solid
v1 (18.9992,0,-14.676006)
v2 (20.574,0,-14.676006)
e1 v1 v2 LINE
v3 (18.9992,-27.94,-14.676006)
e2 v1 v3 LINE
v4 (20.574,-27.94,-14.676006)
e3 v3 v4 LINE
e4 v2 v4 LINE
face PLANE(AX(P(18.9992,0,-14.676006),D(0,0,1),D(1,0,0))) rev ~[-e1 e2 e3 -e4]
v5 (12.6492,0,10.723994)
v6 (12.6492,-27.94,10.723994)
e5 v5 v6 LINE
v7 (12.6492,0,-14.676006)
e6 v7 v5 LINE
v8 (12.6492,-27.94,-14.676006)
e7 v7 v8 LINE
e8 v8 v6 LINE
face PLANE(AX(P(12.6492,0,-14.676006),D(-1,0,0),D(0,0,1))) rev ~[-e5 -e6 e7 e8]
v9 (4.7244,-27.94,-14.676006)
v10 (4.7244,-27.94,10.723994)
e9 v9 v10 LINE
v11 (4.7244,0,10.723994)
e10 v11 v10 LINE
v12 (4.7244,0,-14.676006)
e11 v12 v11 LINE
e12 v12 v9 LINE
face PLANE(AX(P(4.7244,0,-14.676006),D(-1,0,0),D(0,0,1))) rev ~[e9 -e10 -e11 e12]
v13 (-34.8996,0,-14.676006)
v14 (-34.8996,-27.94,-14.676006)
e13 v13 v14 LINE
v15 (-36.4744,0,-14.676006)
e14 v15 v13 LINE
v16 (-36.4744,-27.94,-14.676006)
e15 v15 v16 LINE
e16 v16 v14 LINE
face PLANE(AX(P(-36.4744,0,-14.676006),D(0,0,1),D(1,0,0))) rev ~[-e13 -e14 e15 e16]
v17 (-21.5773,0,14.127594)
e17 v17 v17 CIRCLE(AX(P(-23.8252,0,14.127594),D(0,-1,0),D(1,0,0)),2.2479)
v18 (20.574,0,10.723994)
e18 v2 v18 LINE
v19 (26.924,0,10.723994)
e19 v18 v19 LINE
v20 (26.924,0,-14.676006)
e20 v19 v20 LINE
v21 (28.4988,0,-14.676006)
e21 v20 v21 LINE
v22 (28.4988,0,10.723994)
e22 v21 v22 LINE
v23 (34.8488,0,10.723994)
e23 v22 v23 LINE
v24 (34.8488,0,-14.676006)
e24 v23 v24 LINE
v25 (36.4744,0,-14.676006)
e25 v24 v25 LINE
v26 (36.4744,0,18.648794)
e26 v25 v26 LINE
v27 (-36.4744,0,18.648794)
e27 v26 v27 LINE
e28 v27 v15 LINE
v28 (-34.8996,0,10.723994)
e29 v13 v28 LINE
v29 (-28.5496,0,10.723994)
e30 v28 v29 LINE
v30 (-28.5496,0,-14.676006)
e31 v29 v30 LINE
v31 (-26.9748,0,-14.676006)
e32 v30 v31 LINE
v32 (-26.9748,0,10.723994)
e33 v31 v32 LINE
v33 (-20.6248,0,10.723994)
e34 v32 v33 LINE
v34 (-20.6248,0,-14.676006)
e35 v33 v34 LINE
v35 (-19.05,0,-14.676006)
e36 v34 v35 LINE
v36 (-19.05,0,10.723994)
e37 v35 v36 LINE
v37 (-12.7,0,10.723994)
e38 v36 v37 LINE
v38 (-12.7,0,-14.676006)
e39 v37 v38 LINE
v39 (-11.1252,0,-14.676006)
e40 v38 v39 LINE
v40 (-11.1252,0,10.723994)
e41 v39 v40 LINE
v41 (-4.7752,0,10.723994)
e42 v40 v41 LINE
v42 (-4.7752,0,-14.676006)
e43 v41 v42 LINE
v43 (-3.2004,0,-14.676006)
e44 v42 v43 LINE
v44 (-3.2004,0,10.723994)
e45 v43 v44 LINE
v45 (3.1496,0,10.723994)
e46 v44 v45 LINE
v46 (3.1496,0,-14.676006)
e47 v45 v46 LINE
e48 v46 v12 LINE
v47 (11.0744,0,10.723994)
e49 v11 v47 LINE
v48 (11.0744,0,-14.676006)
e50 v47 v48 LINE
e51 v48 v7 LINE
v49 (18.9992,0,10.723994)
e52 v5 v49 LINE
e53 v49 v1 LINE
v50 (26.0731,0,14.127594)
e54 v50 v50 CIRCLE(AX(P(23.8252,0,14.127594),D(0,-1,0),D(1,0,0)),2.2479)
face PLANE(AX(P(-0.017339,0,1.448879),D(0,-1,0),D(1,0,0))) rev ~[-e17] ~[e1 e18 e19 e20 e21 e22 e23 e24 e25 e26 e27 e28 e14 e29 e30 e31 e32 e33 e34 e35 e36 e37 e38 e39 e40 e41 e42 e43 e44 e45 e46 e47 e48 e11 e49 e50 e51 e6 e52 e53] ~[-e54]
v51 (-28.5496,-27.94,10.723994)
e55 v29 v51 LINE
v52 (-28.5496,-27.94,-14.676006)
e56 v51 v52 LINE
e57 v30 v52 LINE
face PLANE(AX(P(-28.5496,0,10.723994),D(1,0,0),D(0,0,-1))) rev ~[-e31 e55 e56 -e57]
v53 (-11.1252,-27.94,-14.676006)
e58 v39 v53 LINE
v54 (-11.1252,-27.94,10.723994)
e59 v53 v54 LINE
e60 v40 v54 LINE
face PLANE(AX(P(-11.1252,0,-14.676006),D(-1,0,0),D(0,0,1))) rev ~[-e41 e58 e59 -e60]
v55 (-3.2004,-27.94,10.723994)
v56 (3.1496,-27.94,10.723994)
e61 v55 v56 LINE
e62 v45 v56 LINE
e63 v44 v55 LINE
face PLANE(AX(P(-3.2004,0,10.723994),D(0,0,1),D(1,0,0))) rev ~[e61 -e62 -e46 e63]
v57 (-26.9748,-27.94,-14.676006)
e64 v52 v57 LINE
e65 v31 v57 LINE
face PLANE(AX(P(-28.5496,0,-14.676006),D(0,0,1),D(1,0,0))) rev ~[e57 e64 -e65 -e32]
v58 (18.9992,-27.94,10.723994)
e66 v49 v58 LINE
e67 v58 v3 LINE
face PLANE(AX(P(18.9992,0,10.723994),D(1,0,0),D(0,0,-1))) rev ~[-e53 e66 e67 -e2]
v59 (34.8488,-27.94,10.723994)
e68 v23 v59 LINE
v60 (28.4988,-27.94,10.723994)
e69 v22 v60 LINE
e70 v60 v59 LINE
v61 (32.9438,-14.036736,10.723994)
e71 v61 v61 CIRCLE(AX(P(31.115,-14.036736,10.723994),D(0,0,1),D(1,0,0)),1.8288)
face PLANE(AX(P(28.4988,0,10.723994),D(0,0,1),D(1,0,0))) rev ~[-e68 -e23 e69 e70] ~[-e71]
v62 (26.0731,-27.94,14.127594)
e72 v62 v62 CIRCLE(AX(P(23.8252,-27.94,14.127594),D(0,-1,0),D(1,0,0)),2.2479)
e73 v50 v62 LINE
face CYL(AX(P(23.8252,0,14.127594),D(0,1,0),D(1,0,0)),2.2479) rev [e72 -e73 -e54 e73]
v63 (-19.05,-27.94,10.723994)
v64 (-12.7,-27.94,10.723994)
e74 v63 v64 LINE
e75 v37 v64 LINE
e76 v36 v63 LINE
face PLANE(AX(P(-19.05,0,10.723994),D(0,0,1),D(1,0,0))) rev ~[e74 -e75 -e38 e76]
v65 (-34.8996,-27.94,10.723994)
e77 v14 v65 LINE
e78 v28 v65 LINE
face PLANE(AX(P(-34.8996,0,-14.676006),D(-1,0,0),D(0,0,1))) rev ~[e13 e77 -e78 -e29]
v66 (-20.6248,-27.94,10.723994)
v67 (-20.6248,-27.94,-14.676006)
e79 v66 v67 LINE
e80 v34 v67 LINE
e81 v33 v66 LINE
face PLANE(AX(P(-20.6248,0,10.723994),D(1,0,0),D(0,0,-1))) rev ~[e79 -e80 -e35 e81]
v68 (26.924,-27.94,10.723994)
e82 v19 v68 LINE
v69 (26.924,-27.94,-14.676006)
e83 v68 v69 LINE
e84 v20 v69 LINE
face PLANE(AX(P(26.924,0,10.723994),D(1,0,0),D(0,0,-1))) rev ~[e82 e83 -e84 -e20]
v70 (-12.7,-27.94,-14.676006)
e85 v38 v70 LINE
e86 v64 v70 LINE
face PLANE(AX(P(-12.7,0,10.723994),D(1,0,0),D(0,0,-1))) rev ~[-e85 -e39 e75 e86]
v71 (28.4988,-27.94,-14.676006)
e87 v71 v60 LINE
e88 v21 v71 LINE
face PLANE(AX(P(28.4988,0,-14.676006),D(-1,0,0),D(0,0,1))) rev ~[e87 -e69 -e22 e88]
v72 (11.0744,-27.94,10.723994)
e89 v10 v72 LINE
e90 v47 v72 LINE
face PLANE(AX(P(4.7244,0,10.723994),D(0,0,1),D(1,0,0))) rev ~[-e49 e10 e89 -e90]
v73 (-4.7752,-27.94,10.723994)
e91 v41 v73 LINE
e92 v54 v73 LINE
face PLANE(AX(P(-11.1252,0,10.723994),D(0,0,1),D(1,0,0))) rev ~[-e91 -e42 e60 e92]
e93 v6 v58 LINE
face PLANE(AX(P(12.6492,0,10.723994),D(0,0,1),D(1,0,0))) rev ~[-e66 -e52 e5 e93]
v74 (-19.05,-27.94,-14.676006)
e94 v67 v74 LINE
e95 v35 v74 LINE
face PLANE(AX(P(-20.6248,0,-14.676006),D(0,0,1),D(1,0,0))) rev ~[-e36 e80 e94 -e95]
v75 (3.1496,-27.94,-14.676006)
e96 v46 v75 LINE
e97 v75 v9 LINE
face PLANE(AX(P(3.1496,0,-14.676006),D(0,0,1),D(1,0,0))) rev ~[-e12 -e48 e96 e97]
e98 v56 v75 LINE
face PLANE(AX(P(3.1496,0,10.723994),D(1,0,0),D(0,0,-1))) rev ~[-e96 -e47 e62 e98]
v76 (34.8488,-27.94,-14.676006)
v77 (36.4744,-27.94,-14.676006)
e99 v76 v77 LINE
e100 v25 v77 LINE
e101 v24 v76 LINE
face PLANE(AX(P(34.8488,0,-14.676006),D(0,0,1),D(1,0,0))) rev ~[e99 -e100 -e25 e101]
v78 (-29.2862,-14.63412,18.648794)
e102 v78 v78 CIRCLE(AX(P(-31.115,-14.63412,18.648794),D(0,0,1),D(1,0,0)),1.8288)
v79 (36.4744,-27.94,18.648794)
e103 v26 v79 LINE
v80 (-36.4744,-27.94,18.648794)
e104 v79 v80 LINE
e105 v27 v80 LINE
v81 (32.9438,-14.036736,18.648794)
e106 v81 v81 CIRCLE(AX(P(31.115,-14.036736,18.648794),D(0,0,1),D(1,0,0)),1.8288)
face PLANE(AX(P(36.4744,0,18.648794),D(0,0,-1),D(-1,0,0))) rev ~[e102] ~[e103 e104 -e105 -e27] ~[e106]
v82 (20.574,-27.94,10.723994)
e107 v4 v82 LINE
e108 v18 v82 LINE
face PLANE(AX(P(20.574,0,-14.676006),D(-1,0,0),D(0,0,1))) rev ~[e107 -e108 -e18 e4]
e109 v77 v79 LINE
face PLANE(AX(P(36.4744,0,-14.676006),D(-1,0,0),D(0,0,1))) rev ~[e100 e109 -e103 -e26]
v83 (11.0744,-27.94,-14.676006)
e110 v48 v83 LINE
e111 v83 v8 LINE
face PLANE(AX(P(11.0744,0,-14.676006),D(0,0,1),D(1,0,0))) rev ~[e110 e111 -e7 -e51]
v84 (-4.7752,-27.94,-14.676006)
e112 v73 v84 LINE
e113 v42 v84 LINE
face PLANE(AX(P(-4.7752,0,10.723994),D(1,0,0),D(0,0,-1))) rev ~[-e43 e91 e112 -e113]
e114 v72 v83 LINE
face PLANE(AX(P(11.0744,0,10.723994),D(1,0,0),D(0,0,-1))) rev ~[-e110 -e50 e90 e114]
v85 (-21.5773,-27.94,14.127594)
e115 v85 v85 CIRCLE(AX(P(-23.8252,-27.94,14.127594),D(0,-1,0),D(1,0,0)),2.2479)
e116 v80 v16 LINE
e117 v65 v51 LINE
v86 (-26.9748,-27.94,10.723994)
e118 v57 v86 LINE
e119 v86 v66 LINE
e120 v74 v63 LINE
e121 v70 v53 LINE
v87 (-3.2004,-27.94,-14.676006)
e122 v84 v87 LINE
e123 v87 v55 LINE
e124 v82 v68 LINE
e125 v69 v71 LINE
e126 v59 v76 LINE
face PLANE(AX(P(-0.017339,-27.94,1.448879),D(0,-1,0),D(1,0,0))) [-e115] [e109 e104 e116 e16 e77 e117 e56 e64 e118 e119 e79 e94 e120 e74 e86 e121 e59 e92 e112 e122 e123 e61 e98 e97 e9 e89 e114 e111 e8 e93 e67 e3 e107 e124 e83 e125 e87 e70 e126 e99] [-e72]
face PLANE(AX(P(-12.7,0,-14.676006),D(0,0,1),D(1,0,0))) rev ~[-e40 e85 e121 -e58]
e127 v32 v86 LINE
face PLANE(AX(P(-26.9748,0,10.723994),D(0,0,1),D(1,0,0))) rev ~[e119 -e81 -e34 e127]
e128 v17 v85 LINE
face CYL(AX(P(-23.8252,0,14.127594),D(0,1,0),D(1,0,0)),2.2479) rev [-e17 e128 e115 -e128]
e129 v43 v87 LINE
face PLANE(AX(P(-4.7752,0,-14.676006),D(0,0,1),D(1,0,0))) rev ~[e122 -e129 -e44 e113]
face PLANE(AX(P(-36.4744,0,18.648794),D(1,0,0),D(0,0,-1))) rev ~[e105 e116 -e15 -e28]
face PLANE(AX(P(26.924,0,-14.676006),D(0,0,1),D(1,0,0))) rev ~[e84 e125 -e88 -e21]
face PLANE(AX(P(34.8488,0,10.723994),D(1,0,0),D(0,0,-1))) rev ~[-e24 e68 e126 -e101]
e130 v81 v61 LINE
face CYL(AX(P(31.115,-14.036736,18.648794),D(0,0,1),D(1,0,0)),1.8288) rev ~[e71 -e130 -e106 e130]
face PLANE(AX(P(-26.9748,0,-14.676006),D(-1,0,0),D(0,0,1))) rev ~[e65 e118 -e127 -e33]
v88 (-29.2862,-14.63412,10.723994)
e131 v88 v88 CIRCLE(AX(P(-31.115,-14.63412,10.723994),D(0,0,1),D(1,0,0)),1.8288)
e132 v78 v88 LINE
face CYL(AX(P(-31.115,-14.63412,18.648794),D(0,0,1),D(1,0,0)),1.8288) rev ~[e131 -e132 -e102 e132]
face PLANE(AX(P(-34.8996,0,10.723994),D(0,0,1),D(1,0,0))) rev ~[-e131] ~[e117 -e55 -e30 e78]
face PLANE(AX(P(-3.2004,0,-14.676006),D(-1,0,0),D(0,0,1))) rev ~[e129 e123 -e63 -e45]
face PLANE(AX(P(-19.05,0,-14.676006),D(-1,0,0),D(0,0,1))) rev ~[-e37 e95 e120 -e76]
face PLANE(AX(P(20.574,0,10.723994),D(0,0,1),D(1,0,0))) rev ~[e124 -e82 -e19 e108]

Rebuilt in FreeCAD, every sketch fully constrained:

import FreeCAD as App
import Part
import Sketcher
Q = App.Units.Quantity

doc = App.newDocument("Part")
body = doc.addObject("PartDesign::Body", "Body")

sketch1 = body.newObject("Sketcher::SketchObject", "Sketch")
sketch1.AttachmentSupport = (doc.getObject("XZ_Plane"), [""])
sketch1.MapMode = "FlatFace"
sketch1.addGeometry([
    Part.LineSegment(App.Vector(-36.5, 18.6, 0), App.Vector(-36.5, -14.7, 0)),
    Part.LineSegment(App.Vector(-36.5, -14.7, 0), App.Vector(-34.9, -14.7, 0)),
    Part.LineSegment(App.Vector(-34.9, -14.7, 0), App.Vector(-34.9, 10.7, 0)),
    Part.LineSegment(App.Vector(-34.9, 10.7, 0), App.Vector(-28.5, 10.7, 0)),
    Part.LineSegment(App.Vector(-28.5, 10.7, 0), App.Vector(-28.5, -14.7, 0)),
    Part.LineSegment(App.Vector(-28.5, -14.7, 0), App.Vector(-27, -14.7, 0)),
    Part.LineSegment(App.Vector(-27, -14.7, 0), App.Vector(-27, 10.7, 0)),
    Part.LineSegment(App.Vector(-27, 10.7, 0), App.Vector(-20.6, 10.7, 0)),
    Part.LineSegment(App.Vector(-20.6, 10.7, 0), App.Vector(-20.6, -14.7, 0)),
    Part.LineSegment(App.Vector(-20.6, -14.7, 0), App.Vector(-19.1, -14.7, 0)),
    Part.LineSegment(App.Vector(-19.1, -14.7, 0), App.Vector(-19.1, 10.7, 0)),
    Part.LineSegment(App.Vector(-19.1, 10.7, 0), App.Vector(-12.7, 10.7, 0)),
    Part.LineSegment(App.Vector(-12.7, 10.7, 0), App.Vector(-12.7, -14.7, 0)),
    Part.LineSegment(App.Vector(-12.7, -14.7, 0), App.Vector(-11.1, -14.7, 0)),
    Part.LineSegment(App.Vector(-11.1, -14.7, 0), App.Vector(-11.1, 10.7, 0)),
    Part.LineSegment(App.Vector(-11.1, 10.7, 0), App.Vector(-4.8, 10.7, 0)),
    Part.LineSegment(App.Vector(-4.8, 10.7, 0), App.Vector(-4.8, -14.7, 0)),
    Part.LineSegment(App.Vector(-4.8, -14.7, 0), App.Vector(-3.2, -14.7, 0)),
    Part.LineSegment(App.Vector(-3.2, -14.7, 0), App.Vector(-3.2, 10.7, 0)),
    Part.LineSegment(App.Vector(-3.2, 10.7, 0), App.Vector(3.1, 10.7, 0)),
    Part.LineSegment(App.Vector(3.1, 10.7, 0), App.Vector(3.1, -14.7, 0)),
    Part.LineSegment(App.Vector(3.1, -14.7, 0), App.Vector(4.7, -14.7, 0)),
    Part.LineSegment(App.Vector(4.7, -14.7, 0), App.Vector(4.7, 10.7, 0)),
    Part.LineSegment(App.Vector(4.7, 10.7, 0), App.Vector(11.1, 10.7, 0)),
    Part.LineSegment(App.Vector(11.1, 10.7, 0), App.Vector(11.1, -14.7, 0)),
    Part.LineSegment(App.Vector(11.1, -14.7, 0), App.Vector(12.6, -14.7, 0)),
    Part.LineSegment(App.Vector(12.6, -14.7, 0), App.Vector(12.6, 10.7, 0)),
    Part.LineSegment(App.Vector(12.6, 10.7, 0), App.Vector(19, 10.7, 0)),
    Part.LineSegment(App.Vector(19, 10.7, 0), App.Vector(19, -14.7, 0)),
    Part.LineSegment(App.Vector(19, -14.7, 0), App.Vector(20.6, -14.7, 0)),
    Part.LineSegment(App.Vector(20.6, -14.7, 0), App.Vector(20.6, 10.7, 0)),
    Part.LineSegment(App.Vector(20.6, 10.7, 0), App.Vector(26.9, 10.7, 0)),
    Part.LineSegment(App.Vector(26.9, 10.7, 0), App.Vector(26.9, -14.7, 0)),
    Part.LineSegment(App.Vector(26.9, -14.7, 0), App.Vector(28.5, -14.7, 0)),
    Part.LineSegment(App.Vector(28.5, -14.7, 0), App.Vector(28.5, 10.7, 0)),
    Part.LineSegment(App.Vector(28.5, 10.7, 0), App.Vector(34.8, 10.7, 0)),
    Part.LineSegment(App.Vector(34.8, 10.7, 0), App.Vector(34.8, -14.7, 0)),
    Part.LineSegment(App.Vector(34.8, -14.7, 0), App.Vector(36.5, -14.7, 0)),
    Part.LineSegment(App.Vector(36.5, -14.7, 0), App.Vector(36.5, 18.6, 0)),
    Part.LineSegment(App.Vector(36.5, 18.6, 0), App.Vector(-36.5, 18.6, 0)),
    Part.Circle(App.Vector(-23.8, 14.1, 0), App.Vector(0, 0, 1), 2.2),
    Part.Circle(App.Vector(23.8, 14.1, 0), App.Vector(0, 0, 1), 2.2),
], False)
sketch1.addConstraint([
    Sketcher.Constraint("Coincident", 0, 2, 1, 1),
    Sketcher.Constraint("Coincident", 1, 2, 2, 1),
    Sketcher.Constraint("Coincident", 2, 2, 3, 1),
    Sketcher.Constraint("Coincident", 3, 2, 4, 1),
    Sketcher.Constraint("Coincident", 4, 2, 5, 1),
    Sketcher.Constraint("Coincident", 5, 2, 6, 1),
    Sketcher.Constraint("Coincident", 6, 2, 7, 1),
    Sketcher.Constraint("Coincident", 7, 2, 8, 1),
    Sketcher.Constraint("Coincident", 8, 2, 9, 1),
    Sketcher.Constraint("Coincident", 9, 2, 10, 1),
    Sketcher.Constraint("Coincident", 10, 2, 11, 1),
    Sketcher.Constraint("Coincident", 11, 2, 12, 1),
    Sketcher.Constraint("Coincident", 12, 2, 13, 1),
    Sketcher.Constraint("Coincident", 13, 2, 14, 1),
    Sketcher.Constraint("Coincident", 14, 2, 15, 1),
    Sketcher.Constraint("Coincident", 15, 2, 16, 1),
    Sketcher.Constraint("Coincident", 16, 2, 17, 1),
    Sketcher.Constraint("Coincident", 17, 2, 18, 1),
    Sketcher.Constraint("Coincident", 18, 2, 19, 1),
    Sketcher.Constraint("Coincident", 19, 2, 20, 1),
    Sketcher.Constraint("Coincident", 20, 2, 21, 1),
    Sketcher.Constraint("Coincident", 21, 2, 22, 1),
    Sketcher.Constraint("Coincident", 22, 2, 23, 1),
    Sketcher.Constraint("Coincident", 23, 2, 24, 1),
    Sketcher.Constraint("Coincident", 24, 2, 25, 1),
    Sketcher.Constraint("Coincident", 25, 2, 26, 1),
    Sketcher.Constraint("Coincident", 26, 2, 27, 1),
    Sketcher.Constraint("Coincident", 27, 2, 28, 1),
    Sketcher.Constraint("Coincident", 28, 2, 29, 1),
    Sketcher.Constraint("Coincident", 29, 2, 30, 1),
    Sketcher.Constraint("Coincident", 30, 2, 31, 1),
    Sketcher.Constraint("Coincident", 31, 2, 32, 1),
    Sketcher.Constraint("Coincident", 32, 2, 33, 1),
    Sketcher.Constraint("Coincident", 33, 2, 34, 1),
    Sketcher.Constraint("Coincident", 34, 2, 35, 1),
    Sketcher.Constraint("Coincident", 35, 2, 36, 1),
    Sketcher.Constraint("Coincident", 36, 2, 37, 1),
    Sketcher.Constraint("Coincident", 37, 2, 38, 1),
    Sketcher.Constraint("Coincident", 38, 2, 39, 1),
    Sketcher.Constraint("Coincident", 39, 2, 0, 1),
    Sketcher.Constraint("Vertical", 0),
    Sketcher.Constraint("Horizontal", 1),
    Sketcher.Constraint("Vertical", 2),
    Sketcher.Constraint("Horizontal", 3),
    Sketcher.Constraint("Vertical", 4),
    Sketcher.Constraint("Horizontal", 5),
    Sketcher.Constraint("Vertical", 6),
    Sketcher.Constraint("Horizontal", 7),
    Sketcher.Constraint("Vertical", 8),
    Sketcher.Constraint("Horizontal", 9),
    Sketcher.Constraint("Vertical", 10),
    Sketcher.Constraint("Horizontal", 11),
    Sketcher.Constraint("Vertical", 12),
    Sketcher.Constraint("Horizontal", 13),
    Sketcher.Constraint("Vertical", 14),
    Sketcher.Constraint("Horizontal", 15),
    Sketcher.Constraint("Vertical", 16),
    Sketcher.Constraint("Horizontal", 17),
    Sketcher.Constraint("Vertical", 18),
    Sketcher.Constraint("Horizontal", 19),
    Sketcher.Constraint("Vertical", 20),
    Sketcher.Constraint("Horizontal", 21),
    Sketcher.Constraint("Vertical", 22),
    Sketcher.Constraint("Horizontal", 23),
    Sketcher.Constraint("Vertical", 24),
    Sketcher.Constraint("Horizontal", 25),
    Sketcher.Constraint("Vertical", 26),
    Sketcher.Constraint("Horizontal", 27),
    Sketcher.Constraint("Vertical", 28),
    Sketcher.Constraint("Horizontal", 29),
    Sketcher.Constraint("Vertical", 30),
    Sketcher.Constraint("Horizontal", 31),
    Sketcher.Constraint("Vertical", 32),
    Sketcher.Constraint("Horizontal", 33),
    Sketcher.Constraint("Vertical", 34),
    Sketcher.Constraint("Horizontal", 35),
    Sketcher.Constraint("Vertical", 36),
    Sketcher.Constraint("Horizontal", 37),
    Sketcher.Constraint("Vertical", 38),
    Sketcher.Constraint("Horizontal", 39),
    Sketcher.Constraint("Equal", 40, 41),
    Sketcher.Constraint("Symmetric", 40, 3, 41, 3, -2),
    Sketcher.Constraint("Symmetric", 0, 2, 37, 2, -2),
    Sketcher.Constraint("Horizontal", 1, 2, 4, 2),
    Sketcher.Constraint("Horizontal", 3, 2, 6, 2),
    Sketcher.Constraint("Horizontal", 5, 2, 8, 2),
    Sketcher.Constraint("Horizontal", 7, 2, 10, 2),
    Sketcher.Constraint("Horizontal", 9, 2, 12, 2),
    Sketcher.Constraint("Horizontal", 11, 2, 14, 2),
    Sketcher.Constraint("Horizontal", 13, 2, 16, 2),
    Sketcher.Constraint("Horizontal", 15, 2, 18, 2),
    Sketcher.Constraint("Horizontal", 17, 2, 20, 2),
    Sketcher.Constraint("Horizontal", 19, 2, 22, 2),
    Sketcher.Constraint("Horizontal", 21, 2, 24, 2),
    Sketcher.Constraint("Horizontal", 23, 2, 26, 2),
    Sketcher.Constraint("Horizontal", 25, 2, 28, 2),
    Sketcher.Constraint("Horizontal", 27, 2, 30, 2),
    Sketcher.Constraint("Horizontal", 29, 2, 32, 2),
    Sketcher.Constraint("Horizontal", 31, 2, 34, 2),
    Sketcher.Constraint("Equal", 1, 5),
    Sketcher.Constraint("Equal", 3, 7),
    Sketcher.Constraint("Equal", 5, 9),
    Sketcher.Constraint("Equal", 7, 11),
    Sketcher.Constraint("Equal", 9, 13),
    Sketcher.Constraint("Equal", 11, 15),
    Sketcher.Constraint("Equal", 13, 17),
    Sketcher.Constraint("Equal", 15, 19),
    Sketcher.Constraint("Equal", 17, 21),
    Sketcher.Constraint("Equal", 19, 23),
    Sketcher.Constraint("Equal", 21, 25),
    Sketcher.Constraint("Equal", 23, 27),
    Sketcher.Constraint("Equal", 25, 29),
    Sketcher.Constraint("Equal", 27, 31),
    Sketcher.Constraint("Equal", 29, 33),
    Sketcher.Constraint("Equal", 31, 35),
    Sketcher.Constraint("DistanceY", 2, 1, 2, 2, Q("1 in")),
    Sketcher.Constraint("Diameter", 40, Q("0.177 in")),
    Sketcher.Constraint("DistanceX", 3, 1, 3, 2, Q("0.25 in")),
    Sketcher.Constraint("DistanceX", 11, 2, -1, 1, Q("0.5 in")),
    Sketcher.Constraint("DistanceX", 40, 3, 14, 2, Q("0.5 in")),
    Sketcher.Constraint("DistanceX", 1, 1, 1, 2, Q("0.062 in")),
    Sketcher.Constraint("DistanceY", 0, 2, 0, 1, Q("1.312 in")),
    Sketcher.Constraint("DistanceY", 0, 2, 40, 3, Q("1.134 in")),
    Sketcher.Constraint("DistanceY", -1, 1, 40, 3, Q("14.127594 mm")),
])
pad1 = body.newObject("PartDesign::Pad", "Pad")
pad1.Profile = sketch1
pad1.Length = Q("1.1 in")

sketch2 = body.newObject("Sketcher::SketchObject", "Sketch001")
sketch2.AttachmentSupport = (doc.getObject("XY_Plane"), [""])
sketch2.MapMode = "FlatFace"
sketch2.AttachmentOffset = App.Placement(App.Vector(0, 0, 18.648794), App.Rotation())
sketch2.addGeometry(Part.Circle(App.Vector(-31.1, -14.6, 0), App.Vector(0, 0, 1), 1.8), False)
sketch2.addConstraint([
    Sketcher.Constraint("Diameter", 0, Q("0.144 in")),
    Sketcher.Constraint("DistanceX", 0, 3, -1, 1, Q("1.225 in")),
    Sketcher.Constraint("DistanceY", 0, 3, -1, 1, Q("14.63412 mm")),
])
pocket1 = body.newObject("PartDesign::Pocket", "Pocket")
pocket1.Profile = sketch2
pocket1.Type = "ThroughAll"

sketch3 = body.newObject("Sketcher::SketchObject", "Sketch002")
sketch3.AttachmentSupport = (doc.getObject("XY_Plane"), [""])
sketch3.MapMode = "FlatFace"
sketch3.AttachmentOffset = App.Placement(App.Vector(0, 0, 18.648794), App.Rotation())
sketch3.addGeometry([
    Part.Circle(App.Vector(31.1, -14, 0), App.Vector(0, 0, 1), 1.8),
    Part.Circle(App.Vector(-31.1, -14.6, 0), App.Vector(0, 0, 1), 1.8),
], False)
sketch3.addConstraint([
    Sketcher.Constraint("Equal", 0, 1),
    Sketcher.Constraint("Diameter", 0, Q("0.144 in")),
    Sketcher.Constraint("DistanceX", 1, 3, 0, 3, Q("2.45 in")),
    Sketcher.Constraint("DistanceX", -1, 1, 0, 3, Q("1.225 in")),
    Sketcher.Constraint("DistanceY", 1, 3, -1, 1, Q("14.63412 mm")),
    Sketcher.Constraint("DistanceY", 0, 3, -1, 1, Q("14.036736 mm")),
])
pocket2 = body.newObject("PartDesign::Pocket", "Pocket001")
pocket2.Profile = sketch3
pocket2.Type = "ThroughAll"

doc.recompute()
